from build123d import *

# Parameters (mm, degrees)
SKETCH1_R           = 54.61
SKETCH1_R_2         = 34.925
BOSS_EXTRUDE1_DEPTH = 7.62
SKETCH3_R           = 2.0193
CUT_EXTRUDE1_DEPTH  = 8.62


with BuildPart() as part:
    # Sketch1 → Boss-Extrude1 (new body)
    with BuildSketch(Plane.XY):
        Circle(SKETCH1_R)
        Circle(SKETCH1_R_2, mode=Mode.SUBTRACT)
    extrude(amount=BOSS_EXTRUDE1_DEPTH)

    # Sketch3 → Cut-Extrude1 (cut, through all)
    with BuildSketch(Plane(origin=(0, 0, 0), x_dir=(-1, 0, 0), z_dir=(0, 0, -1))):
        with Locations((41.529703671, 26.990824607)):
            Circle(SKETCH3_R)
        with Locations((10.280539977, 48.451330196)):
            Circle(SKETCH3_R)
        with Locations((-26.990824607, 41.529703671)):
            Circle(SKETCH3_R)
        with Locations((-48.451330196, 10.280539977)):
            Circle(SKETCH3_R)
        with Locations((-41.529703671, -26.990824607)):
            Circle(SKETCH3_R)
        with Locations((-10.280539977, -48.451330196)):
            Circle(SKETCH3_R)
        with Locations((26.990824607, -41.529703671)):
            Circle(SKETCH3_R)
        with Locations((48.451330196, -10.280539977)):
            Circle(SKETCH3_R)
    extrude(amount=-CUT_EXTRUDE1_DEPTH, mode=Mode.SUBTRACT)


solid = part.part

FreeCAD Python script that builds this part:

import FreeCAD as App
import Part
import Sketcher
Q = App.Units.Quantity

doc = App.newDocument("Part")
body = doc.addObject("PartDesign::Body", "Body")

# Sketch on XY plane
sketch1 = doc.addObject("Sketcher::SketchObject", "Sketch")
body.addObject(sketch1)
sketch1.AttachmentSupport = (doc.XY_Plane, [""])
sketch1.MapMode = "FlatFace"
sketch1.addGeometry(Part.Circle(App.Vector(0, 0, 0), App.Vector(0, 0, 1), 55), False)
sketch1.addGeometry(Part.Circle(App.Vector(0, 0, 0), App.Vector(0, 0, 1), 35), False)
sketch1.addConstraint(Sketcher.Constraint("Coincident", 0, 3, -1, 1))
sketch1.addConstraint(Sketcher.Constraint("Coincident", 1, 3, -1, 1))
sketch1.addConstraint(Sketcher.Constraint("Diameter", 0, Q("4.3 in")))
sketch1.addConstraint(Sketcher.Constraint("Diameter", 1, Q("2.75 in")))
pad1 = doc.addObject("PartDesign::Pad", "Pad")
body.addObject(pad1)
pad1.Profile = sketch1
pad1.Length = Q("0.3 in")

# Sketch on XY plane
sketch2 = doc.addObject("Sketcher::SketchObject", "Sketch001")
body.addObject(sketch2)
sketch2.AttachmentSupport = (doc.XY_Plane, [""])
sketch2.MapMode = "FlatFace"
sketch2.addGeometry(Part.Circle(App.Vector(-41.5, 27, 0), App.Vector(0, 0, 1), 2), False)
sketch2.addGeometry(Part.Circle(App.Vector(-10.3, 48.5, 0), App.Vector(0, 0, 1), 2), False)
sketch2.addGeometry(Part.Circle(App.Vector(27, 41.5, 0), App.Vector(0, 0, 1), 2), False)
sketch2.addGeometry(Part.Circle(App.Vector(48.5, 10.3, 0), App.Vector(0, 0, 1), 2), False)
sketch2.addGeometry(Part.Circle(App.Vector(41.5, -27, 0), App.Vector(0, 0, 1), 2), False)
sketch2.addGeometry(Part.Circle(App.Vector(10.3, -48.5, 0), App.Vector(0, 0, 1), 2), False)
sketch2.addGeometry(Part.Circle(App.Vector(-27, -41.5, 0), App.Vector(0, 0, 1), 2), False)
sketch2.addGeometry(Part.Circle(App.Vector(-48.5, -10.3, 0), App.Vector(0, 0, 1), 2), False)
sketch2.addConstraint(Sketcher.Constraint("Equal", 0, 1))
sketch2.addConstraint(Sketcher.Constraint("Equal", 1, 2))
sketch2.addConstraint(Sketcher.Constraint("Equal", 2, 3))
sketch2.addConstraint(Sketcher.Constraint("Equal", 3, 4))
sketch2.addConstraint(Sketcher.Constraint("Equal", 4, 5))
sketch2.addConstraint(Sketcher.Constraint("Equal", 5, 6))
sketch2.addConstraint(Sketcher.Constraint("Equal", 6, 7))
sketch2.addConstraint(Sketcher.Constraint("Symmetric", 0, 3, 4, 3, -1, 1))
sketch2.addConstraint(Sketcher.Constraint("Symmetric", 1, 3, 5, 3, -1, 1))
sketch2.addConstraint(Sketcher.Constraint("Symmetric", 2, 3, 6, 3, -1, 1))
sketch2.addConstraint(Sketcher.Constraint("Symmetric", 3, 3, 7, 3, -1, 1))
sketch2.addConstraint(Sketcher.Constraint("Diameter", 0, Q("0.159 in")))
sketch2.addConstraint(Sketcher.Constraint("DistanceX", 1, 3, -1, 1, Q("10.28054 mm")))
sketch2.addConstraint(Sketcher.Constraint("DistanceY", -1, 1, 1, 3, Q("48.45133 mm")))
sketch2.addConstraint(Sketcher.Constraint("DistanceX", -1, 1, 3, 3, Q("48.45133 mm")))
sketch2.addConstraint(Sketcher.Constraint("DistanceY", -1, 1, 3, 3, Q("10.28054 mm")))
sketch2.addConstraint(Sketcher.Constraint("DistanceX", 0, 3, 2, 3, Q("68.520528 mm")))
sketch2.addConstraint(Sketcher.Constraint("DistanceY", 0, 3, 2, 3, Q("14.538879 mm")))
sketch2.addConstraint(Sketcher.Constraint("DistanceX", 2, 3, 4, 3, Q("14.538879 mm")))
sketch2.addConstraint(Sketcher.Constraint("DistanceY", 4, 3, 2, 3, Q("68.520528 mm")))
pocket1 = doc.addObject("PartDesign::Pocket", "Pocket")
body.addObject(pocket1)
pocket1.Profile = sketch2
pocket1.Type = "ThroughAll"
pocket1.Reversed = True

doc.recompute()
